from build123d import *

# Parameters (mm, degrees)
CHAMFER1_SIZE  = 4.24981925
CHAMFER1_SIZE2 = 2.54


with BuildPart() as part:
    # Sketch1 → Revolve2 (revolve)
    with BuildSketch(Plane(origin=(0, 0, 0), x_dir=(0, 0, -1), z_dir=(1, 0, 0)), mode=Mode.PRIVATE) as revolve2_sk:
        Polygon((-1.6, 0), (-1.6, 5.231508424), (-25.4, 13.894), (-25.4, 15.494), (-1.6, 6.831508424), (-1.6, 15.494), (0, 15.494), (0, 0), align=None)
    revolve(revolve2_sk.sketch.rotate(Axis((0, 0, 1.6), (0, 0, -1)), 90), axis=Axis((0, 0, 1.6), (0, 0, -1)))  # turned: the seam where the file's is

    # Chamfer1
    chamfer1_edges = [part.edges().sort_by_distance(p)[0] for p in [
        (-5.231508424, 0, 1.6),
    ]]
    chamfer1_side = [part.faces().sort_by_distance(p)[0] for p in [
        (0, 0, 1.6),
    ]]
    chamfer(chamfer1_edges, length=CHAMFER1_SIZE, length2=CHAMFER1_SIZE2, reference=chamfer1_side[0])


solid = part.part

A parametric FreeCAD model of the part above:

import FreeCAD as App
import Part
import Sketcher
from FreeCAD import Vector
Q = App.Units.Quantity


def edges_at(feature, points):
    """Names of the edges that pass closest to the given points."""
    edges = feature.Shape.Edges
    near = lambda p: min(range(len(edges)), key=lambda i: edges[i].distToShape(Part.Vertex(*p))[0])
    return sorted({f"Edge{near(p) + 1}" for p in points})


def add_polygon(sketch, points):
    """Adds a closed chain of lines whose ends are joined by coincident constraints."""
    first, n = sketch.GeometryCount, len(points)
    for a, b in zip(points, points[1:] + points[:1]):
        sketch.addGeometry(Part.LineSegment(App.Vector(*a, 0), App.Vector(*b, 0)), False)
    for i in range(n):
        sketch.addConstraint(Sketcher.Constraint("Coincident", first + i, 2, first + (i + 1) % n, 1))

doc = App.newDocument("Part")
body = doc.addObject("PartDesign::Body", "Body")

# Sketch on YZ plane
sketch1 = body.newObject("Sketcher::SketchObject", "Sketch")
sketch1.AttachmentSupport = (doc.getObject("YZ_Plane"), [""])
sketch1.MapMode = "FlatFace"
add_polygon(sketch1, [(5.2, 1.6), (0, 1.6), (0, 0), (15.5, 0), (15.5, 1.6), (6.8, 1.6), (15.5, 25.4), (13.9, 25.4)])  # lines 0-7
sketch1.addConstraint([
    Sketcher.Constraint("Horizontal", 0),
    Sketcher.Constraint("Vertical", 1),
    Sketcher.Constraint("Horizontal", 2),
    Sketcher.Constraint("Vertical", 3),
    Sketcher.Constraint("Horizontal", 4),
    Sketcher.Constraint("Horizontal", 6),
    Sketcher.Constraint("Coincident", 1, 2, -1, 1),
    Sketcher.Constraint("Parallel", 5, 7),
    Sketcher.Constraint("Horizontal", 0, 2, 3, 2),
    Sketcher.Constraint("Vertical", 3, 2, 5, 2),
    Sketcher.Constraint("Equal", 6, 1),
    Sketcher.Constraint("Angle", 5, Q("70 deg")),
    Sketcher.Constraint("DistanceX", 6, 2, 6, 1, 1.6),
    Sketcher.Constraint("DistanceY", -1, 1, 5, 2, 25.4),
    Sketcher.Constraint("DistanceX", 2, 1, 2, 2, 15.494),
])
revolution = body.newObject("PartDesign::Revolution", "Revolution")
revolution.Profile = sketch1
revolution.ReferenceAxis = (sketch1, ["V_Axis"])
revolution.Angle = 360
doc.recompute()

chamfer = body.newObject("PartDesign::Chamfer", "Chamfer")
chamfer.Base = (revolution, edges_at(revolution, [(-5.232, 0, 1.6)]))
chamfer.ChamferType = "Two distances"
chamfer.Size = 4.249819
chamfer.Size2 = 2.54

doc.recompute()
